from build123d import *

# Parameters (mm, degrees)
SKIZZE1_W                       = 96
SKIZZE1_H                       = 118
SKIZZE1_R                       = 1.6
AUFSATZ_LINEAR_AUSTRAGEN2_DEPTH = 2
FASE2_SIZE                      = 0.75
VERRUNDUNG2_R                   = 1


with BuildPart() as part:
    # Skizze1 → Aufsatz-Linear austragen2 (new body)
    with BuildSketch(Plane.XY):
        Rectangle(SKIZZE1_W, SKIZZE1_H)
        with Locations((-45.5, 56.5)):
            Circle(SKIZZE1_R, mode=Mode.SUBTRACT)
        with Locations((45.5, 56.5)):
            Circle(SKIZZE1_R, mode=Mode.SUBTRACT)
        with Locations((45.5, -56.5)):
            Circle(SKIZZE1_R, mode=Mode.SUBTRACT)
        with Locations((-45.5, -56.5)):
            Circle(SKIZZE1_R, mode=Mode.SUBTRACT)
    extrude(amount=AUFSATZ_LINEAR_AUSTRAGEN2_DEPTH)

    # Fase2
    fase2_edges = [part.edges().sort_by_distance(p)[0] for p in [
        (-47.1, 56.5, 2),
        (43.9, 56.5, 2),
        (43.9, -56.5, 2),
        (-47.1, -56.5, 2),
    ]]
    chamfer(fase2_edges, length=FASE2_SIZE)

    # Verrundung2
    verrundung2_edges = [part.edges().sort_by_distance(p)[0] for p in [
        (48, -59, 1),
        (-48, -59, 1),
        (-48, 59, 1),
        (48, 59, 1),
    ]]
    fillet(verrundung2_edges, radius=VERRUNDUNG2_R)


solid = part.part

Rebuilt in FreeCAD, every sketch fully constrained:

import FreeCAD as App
import Part
import Sketcher
Q = App.Units.Quantity


def edges_at(feature, points):
    """Names of the edges that pass closest to the given points."""
    edges = feature.Shape.Edges
    near = lambda p: min(range(len(edges)), key=lambda i: edges[i].distToShape(Part.Vertex(*p))[0])
    return sorted({f"Edge{near(p) + 1}" for p in points})

doc = App.newDocument("Part")
body = doc.addObject("PartDesign::Body", "Body")

sketch1 = doc.addObject("Sketcher::SketchObject", "Sketch")
body.addObject(sketch1)
sketch1.AttachmentSupport = (doc.XY_Plane, [""])
sketch1.MapMode = "FlatFace"
sketch1.addGeometry([
    Part.LineSegment(App.Vector(-48, 59, 0), App.Vector(-48, -59, 0)),
    Part.LineSegment(App.Vector(-48, -59, 0), App.Vector(48, -59, 0)),
    Part.LineSegment(App.Vector(48, -59, 0), App.Vector(48, 59, 0)),
    Part.LineSegment(App.Vector(48, 59, 0), App.Vector(-48, 59, 0)),
    Part.Circle(App.Vector(-45.5, -56.5, 0), App.Vector(0, 0, 1), 1.6),
    Part.Circle(App.Vector(45.5, -56.5, 0), App.Vector(0, 0, 1), 1.6),
    Part.Circle(App.Vector(-45.5, 56.5, 0), App.Vector(0, 0, 1), 1.6),
    Part.Circle(App.Vector(45.5, 56.5, 0), App.Vector(0, 0, 1), 1.6),
], False)
sketch1.addConstraint([
    Sketcher.Constraint("Coincident", 0, 2, 1, 1),
    Sketcher.Constraint("Coincident", 1, 2, 2, 1),
    Sketcher.Constraint("Coincident", 2, 2, 3, 1),
    Sketcher.Constraint("Coincident", 3, 2, 0, 1),
    Sketcher.Constraint("Vertical", 0),
    Sketcher.Constraint("Horizontal", 1),
    Sketcher.Constraint("Vertical", 2),
    Sketcher.Constraint("Horizontal", 3),
    Sketcher.Constraint("Equal", 4, 5),
    Sketcher.Constraint("Equal", 5, 6),
    Sketcher.Constraint("Equal", 6, 7),
    Sketcher.Constraint("Symmetric", 5, 3, 6, 3, -1, 1),
    Sketcher.Constraint("Symmetric", 4, 3, 7, 3, -1, 1),
    Sketcher.Constraint("Symmetric", 0, 2, 2, 2, -1, 1),
    Sketcher.Constraint("Symmetric", 4, 3, 5, 3, -2),
    Sketcher.Constraint("Diameter", 4, Q("3.2 mm")),
    Sketcher.Constraint("DistanceX", 1, 1, 1, 2, Q("96 mm")),
    Sketcher.Constraint("DistanceY", 0, 2, 0, 1, Q("118 mm")),
    Sketcher.Constraint("DistanceX", 4, 3, 5, 3, Q("91 mm")),
    Sketcher.Constraint("DistanceY", 4, 3, 6, 3, Q("113 mm")),
])
pad1 = doc.addObject("PartDesign::Pad", "Pad")
body.addObject(pad1)
pad1.Profile = sketch1
pad1.Length = 2
doc.recompute()

chamfer = doc.addObject("PartDesign::Chamfer", "Chamfer")
body.addObject(chamfer)
chamfer.Base = (pad1, edges_at(pad1, [
    (-47.1, 56.5, 2),
    (43.9, 56.5, 2),
    (43.9, -56.5, 2),
    (-47.1, -56.5, 2),
]))
chamfer.Size = 0.75
doc.recompute()

fillet = doc.addObject("PartDesign::Fillet", "Fillet")
body.addObject(fillet)
fillet.Base = (chamfer, edges_at(chamfer, [
    (48, -59, 1),
    (-48, -59, 1),
    (-48, 59, 1),
    (48, 59, 1),
]))
fillet.Radius = 1

doc.recompute()
